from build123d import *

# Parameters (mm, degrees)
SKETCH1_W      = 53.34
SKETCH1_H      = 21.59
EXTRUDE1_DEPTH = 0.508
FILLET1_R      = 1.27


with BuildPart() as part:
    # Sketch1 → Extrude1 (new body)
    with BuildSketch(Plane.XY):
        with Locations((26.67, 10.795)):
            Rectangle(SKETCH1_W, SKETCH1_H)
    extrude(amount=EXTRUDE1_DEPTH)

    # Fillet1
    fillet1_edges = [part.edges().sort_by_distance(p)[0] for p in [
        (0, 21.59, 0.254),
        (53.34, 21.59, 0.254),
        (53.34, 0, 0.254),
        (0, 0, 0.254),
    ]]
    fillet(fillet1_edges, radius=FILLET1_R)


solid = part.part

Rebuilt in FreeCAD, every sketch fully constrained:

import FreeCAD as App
import Part
import Sketcher

V = App.Vector
Q = App.Units.Quantity


def edges_at(feature, points):
    """Names of the edges that pass closest to the given points."""
    edges = feature.Shape.Edges
    near = lambda p: min(range(len(edges)), key=lambda i: edges[i].distToShape(Part.Vertex(*p))[0])
    return sorted({f"Edge{near(p) + 1}" for p in points})

doc = App.newDocument("Part")
params = doc.addObject("Spreadsheet::Sheet", "Params")
for row, (alias, value) in enumerate([
    ("sketch1_width", "2.1 in"),
    ("sketch1_height", "0.85 in"),
    ("pad1_length", "0.02 in"),
    ("fillet_radius", "0.05 in"),
], start=1):
    params.set(f"A{row}", alias)
    params.set(f"B{row}", "=" + value)
    params.setAlias(f"B{row}", alias)

body = doc.addObject("PartDesign::Body", "Body")

# Sketch on XY plane
sketch1 = doc.addObject("Sketcher::SketchObject", "Sketch")
body.addObject(sketch1)
sketch1.AttachmentSupport = (doc.XY_Plane, [""])
sketch1.MapMode = "FlatFace"
sketch1.addGeometry([
    Part.LineSegment(V(0, 22, 0), V(0, 0, 0)),
    Part.LineSegment(V(0, 0, 0), V(53, 0, 0)),
    Part.LineSegment(V(53, 0, 0), V(53, 22, 0)),
    Part.LineSegment(V(53, 22, 0), V(0, 22, 0)),
], False)
sketch1.addConstraint([
    Sketcher.Constraint("Coincident", 0, 2, 1, 1),
    Sketcher.Constraint("Coincident", 1, 2, 2, 1),
    Sketcher.Constraint("Coincident", 2, 2, 3, 1),
    Sketcher.Constraint("Coincident", 3, 2, 0, 1),
    Sketcher.Constraint("Vertical", 0),
    Sketcher.Constraint("Horizontal", 1),
    Sketcher.Constraint("Vertical", 2),
    Sketcher.Constraint("Horizontal", 3),
    Sketcher.Constraint("Coincident", 0, 2, -1, 1),
    Sketcher.Constraint("DistanceX", 1, 1, 1, 2, Q("2.1 in")),
    Sketcher.Constraint("DistanceY", 0, 2, 0, 1, Q("0.85 in")),
])
sketch1.setExpression("Constraints[9]", "Params.sketch1_width")
sketch1.setExpression("Constraints[10]", "Params.sketch1_height")
pad1 = doc.addObject("PartDesign::Pad", "Pad")
body.addObject(pad1)
pad1.Profile = sketch1
pad1.setExpression("Length", "Params.pad1_length")
doc.recompute()

fillet = doc.addObject("PartDesign::Fillet", "Fillet")
body.addObject(fillet)
fillet.Base = (pad1, edges_at(pad1, [
    (0, 21.59, 0.254),
    (53.34, 21.59, 0.254),
    (53.34, 0, 0.254),
    (0, 0, 0.254),
]))
fillet.setExpression("Radius", "Params.fillet_radius")

doc.recompute()
